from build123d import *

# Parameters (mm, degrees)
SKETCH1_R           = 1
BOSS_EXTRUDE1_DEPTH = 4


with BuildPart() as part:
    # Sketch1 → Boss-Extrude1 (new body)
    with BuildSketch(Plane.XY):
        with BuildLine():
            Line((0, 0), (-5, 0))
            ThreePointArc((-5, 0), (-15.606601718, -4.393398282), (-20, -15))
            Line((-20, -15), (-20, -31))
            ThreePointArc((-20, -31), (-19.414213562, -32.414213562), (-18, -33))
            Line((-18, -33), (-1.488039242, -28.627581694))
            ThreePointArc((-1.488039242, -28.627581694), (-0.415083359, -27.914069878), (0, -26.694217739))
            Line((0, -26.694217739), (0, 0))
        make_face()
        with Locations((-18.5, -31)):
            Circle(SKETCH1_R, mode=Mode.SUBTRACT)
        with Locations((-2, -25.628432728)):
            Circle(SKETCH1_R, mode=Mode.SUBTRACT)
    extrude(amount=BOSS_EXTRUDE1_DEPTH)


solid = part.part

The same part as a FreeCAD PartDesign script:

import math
import FreeCAD as App
import Part
import Sketcher
from FreeCAD import Vector

doc = App.newDocument("Part")
body = doc.addObject("PartDesign::Body", "Body")

# Sketch on XY plane
sketch1 = body.newObject("Sketcher::SketchObject", "Sketch")
sketch1.AttachmentSupport = (doc.getObject("XY_Plane"), [""])
sketch1.MapMode = "FlatFace"
sketch1.addGeometry(Part.LineSegment(Vector(0, 0, 0), Vector(-5, 0, 0)), False)
sketch1.addGeometry(Part.ArcOfCircle(Part.Circle(Vector(-5, -15, 0), Vector(0, 0, 1), 15), math.radians(90), math.radians(180)), False)
sketch1.addGeometry(Part.LineSegment(Vector(-20, -15, 0), Vector(-20, -31, 0)), False)
sketch1.addGeometry(Part.ArcOfCircle(Part.Circle(Vector(-18, -31, 0), Vector(0, 0, 1), 2), math.radians(-180), math.radians(-90)), False)
sketch1.addGeometry(Part.LineSegment(Vector(-18, -33, 0), Vector(-1.488039, -28.627582, 0)), False)
sketch1.addGeometry(Part.ArcOfCircle(Part.Circle(Vector(-2, -26.694218, 0), Vector(0, 0, 1), 2), math.radians(-75.168315), math.radians(0)), False)
sketch1.addGeometry(Part.LineSegment(Vector(0, -26.694218, 0), Vector(0, 0, 0)), False)
sketch1.addGeometry(Part.Circle(Vector(-18.5, -31, 0), Vector(0, 0, 1), 1), False)
sketch1.addGeometry(Part.Circle(Vector(-2, -25.628433, 0), Vector(0, 0, 1), 1), False)
sketch1.addConstraint(Sketcher.Constraint("Tangent", 0, 2, 1, 1))
sketch1.addConstraint(Sketcher.Constraint("Tangent", 1, 2, 2, 1))
sketch1.addConstraint(Sketcher.Constraint("Tangent", 2, 2, 3, 1))
sketch1.addConstraint(Sketcher.Constraint("Coincident", 3, 2, 4, 1))
sketch1.addConstraint(Sketcher.Constraint("Tangent", 4, 2, 5, 1))
sketch1.addConstraint(Sketcher.Constraint("Tangent", 5, 2, 6, 1))
sketch1.addConstraint(Sketcher.Constraint("Coincident", 6, 2, 0, 1))
sketch1.addConstraint(Sketcher.Constraint("Horizontal", 0))
sketch1.addConstraint(Sketcher.Constraint("Vertical", 2))
sketch1.addConstraint(Sketcher.Constraint("Vertical", 6))
sketch1.addConstraint(Sketcher.Constraint("Coincident", 6, 2, -1, 1))
sketch1.addConstraint(Sketcher.Constraint("Equal", 3, 5))
sketch1.addConstraint(Sketcher.Constraint("Equal", 7, 8))
sketch1.addConstraint(Sketcher.Constraint("Horizontal", 3, 3, 7, 3))
sketch1.addConstraint(Sketcher.Constraint("Vertical", 5, 3, 8, 3))
sketch1.addConstraint(Sketcher.Constraint("Diameter", 7, 2.0))
sketch1.addConstraint(Sketcher.Constraint("Radius", 1, 15.0))
sketch1.addConstraint(Sketcher.Constraint("Radius", 3, 2.0))
sketch1.addConstraint(Sketcher.Constraint("DistanceX", 0, 2, 0, 1, 5.0))
sketch1.addConstraint(Sketcher.Constraint("DistanceY", 2, 2, 2, 1, 16.0))
sketch1.addConstraint(Sketcher.Constraint("DistanceX", 3, 2, -1, 1, 18.0))
sketch1.addConstraint(Sketcher.Constraint("DistanceX", 7, 3, -1, 1, 18.5))
sketch1.addConstraint(Sketcher.Constraint("Distance", 4, 17.081068))
sketch1.addConstraint(Sketcher.Constraint("DistanceY", 4, 2, 8, 3, 2.999149))
pad1 = body.newObject("PartDesign::Pad", "Pad")
pad1.Profile = sketch1
pad1.Length = 4

doc.recompute()
